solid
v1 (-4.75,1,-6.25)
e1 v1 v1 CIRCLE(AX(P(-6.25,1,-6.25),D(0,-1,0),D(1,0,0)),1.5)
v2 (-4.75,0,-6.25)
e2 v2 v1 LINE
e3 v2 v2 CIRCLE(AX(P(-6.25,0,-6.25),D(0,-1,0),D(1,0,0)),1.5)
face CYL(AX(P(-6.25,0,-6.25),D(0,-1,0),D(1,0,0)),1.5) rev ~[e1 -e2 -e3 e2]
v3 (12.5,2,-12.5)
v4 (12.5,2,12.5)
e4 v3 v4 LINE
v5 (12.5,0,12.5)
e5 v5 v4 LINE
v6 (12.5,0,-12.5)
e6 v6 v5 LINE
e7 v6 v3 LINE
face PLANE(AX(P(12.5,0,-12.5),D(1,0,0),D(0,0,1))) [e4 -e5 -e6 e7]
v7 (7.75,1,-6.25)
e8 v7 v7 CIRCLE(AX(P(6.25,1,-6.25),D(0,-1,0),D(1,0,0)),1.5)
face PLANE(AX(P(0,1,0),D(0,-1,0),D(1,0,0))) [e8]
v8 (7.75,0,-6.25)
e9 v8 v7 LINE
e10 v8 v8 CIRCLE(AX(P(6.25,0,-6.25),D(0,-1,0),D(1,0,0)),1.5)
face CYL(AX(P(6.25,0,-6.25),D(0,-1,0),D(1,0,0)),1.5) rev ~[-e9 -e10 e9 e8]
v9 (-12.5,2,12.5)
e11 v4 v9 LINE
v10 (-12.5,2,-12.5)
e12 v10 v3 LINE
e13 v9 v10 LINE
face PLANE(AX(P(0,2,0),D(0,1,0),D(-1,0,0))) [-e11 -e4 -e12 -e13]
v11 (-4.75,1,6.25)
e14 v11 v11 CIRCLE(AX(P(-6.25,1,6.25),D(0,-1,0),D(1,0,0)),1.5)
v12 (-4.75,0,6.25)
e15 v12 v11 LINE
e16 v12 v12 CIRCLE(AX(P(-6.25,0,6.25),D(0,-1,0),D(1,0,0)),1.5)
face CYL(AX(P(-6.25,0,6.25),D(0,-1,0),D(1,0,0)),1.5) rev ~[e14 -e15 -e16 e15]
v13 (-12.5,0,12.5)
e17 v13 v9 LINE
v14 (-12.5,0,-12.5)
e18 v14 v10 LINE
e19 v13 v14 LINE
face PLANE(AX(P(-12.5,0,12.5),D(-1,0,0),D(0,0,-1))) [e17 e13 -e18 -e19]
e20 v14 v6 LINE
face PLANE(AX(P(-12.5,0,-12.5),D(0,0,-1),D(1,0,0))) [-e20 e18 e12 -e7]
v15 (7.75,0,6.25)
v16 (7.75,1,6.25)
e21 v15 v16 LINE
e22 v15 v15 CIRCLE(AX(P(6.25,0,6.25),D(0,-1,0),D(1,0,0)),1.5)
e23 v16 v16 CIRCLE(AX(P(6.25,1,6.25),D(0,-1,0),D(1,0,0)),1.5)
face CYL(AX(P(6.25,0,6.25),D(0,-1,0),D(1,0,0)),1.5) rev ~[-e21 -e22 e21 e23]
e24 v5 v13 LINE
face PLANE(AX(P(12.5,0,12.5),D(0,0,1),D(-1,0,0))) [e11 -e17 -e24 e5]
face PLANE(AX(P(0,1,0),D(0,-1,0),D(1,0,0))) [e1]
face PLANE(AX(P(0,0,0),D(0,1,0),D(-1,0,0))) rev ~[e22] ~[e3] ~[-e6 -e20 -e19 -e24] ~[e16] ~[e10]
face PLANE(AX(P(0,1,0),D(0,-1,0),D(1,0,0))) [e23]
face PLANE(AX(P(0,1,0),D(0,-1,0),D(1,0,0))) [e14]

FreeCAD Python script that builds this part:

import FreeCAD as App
import Part
import Sketcher
Q = App.Units.Quantity

doc = App.newDocument("Part")
body = doc.addObject("PartDesign::Body", "Body")

sketch1 = body.newObject("Sketcher::SketchObject", "Sketch")
sketch1.AttachmentSupport = (doc.getObject("XZ_Plane"), [""])
sketch1.MapMode = "FlatFace"
sketch1.addGeometry(Part.LineSegment(App.Vector(12, -12, 0), App.Vector(-12, -12, 0)), False)
sketch1.addGeometry(Part.LineSegment(App.Vector(-12, -12, 0), App.Vector(-12, 12, 0)), False)
sketch1.addGeometry(Part.LineSegment(App.Vector(-12, 12, 0), App.Vector(12, 12, 0)), False)
sketch1.addGeometry(Part.LineSegment(App.Vector(12, 12, 0), App.Vector(12, -12, 0)), False)
sketch1.addConstraint(Sketcher.Constraint("Coincident", 0, 2, 1, 1))
sketch1.addConstraint(Sketcher.Constraint("Coincident", 1, 2, 2, 1))
sketch1.addConstraint(Sketcher.Constraint("Coincident", 2, 2, 3, 1))
sketch1.addConstraint(Sketcher.Constraint("Coincident", 3, 2, 0, 1))
sketch1.addConstraint(Sketcher.Constraint("Horizontal", 0))
sketch1.addConstraint(Sketcher.Constraint("Vertical", 1))
sketch1.addConstraint(Sketcher.Constraint("Horizontal", 2))
sketch1.addConstraint(Sketcher.Constraint("Vertical", 3))
sketch1.addConstraint(Sketcher.Constraint("Symmetric", 0, 2, 2, 2, -1, 1))
sketch1.addConstraint(Sketcher.Constraint("Equal", 2, 1))
sketch1.addConstraint(Sketcher.Constraint("DistanceX", 0, 2, 0, 1, Q("25 mm")))
pad1 = body.newObject("PartDesign::Pad", "Pad")
pad1.Profile = sketch1
pad1.Length = 2
pad1.Reversed = True

sketch2 = body.newObject("Sketcher::SketchObject", "Sketch001")
sketch2.AttachmentSupport = (doc.getObject("XZ_Plane"), [""])
sketch2.MapMode = "FlatFace"
sketch2.addGeometry(Part.Circle(App.Vector(-6.2, 6.2, 0), App.Vector(0, 0, 1), 1.5), False)
sketch2.addGeometry(Part.Circle(App.Vector(6.2, 6.2, 0), App.Vector(0, 0, 1), 1.5), False)
sketch2.addGeometry(Part.Circle(App.Vector(-6.2, -6.2, 0), App.Vector(0, 0, 1), 1.5), False)
sketch2.addGeometry(Part.Circle(App.Vector(6.2, -6.2, 0), App.Vector(0, 0, 1), 1.5), False)
sketch2.addConstraint(Sketcher.Constraint("Equal", 0, 1))
sketch2.addConstraint(Sketcher.Constraint("Equal", 1, 2))
sketch2.addConstraint(Sketcher.Constraint("Equal", 2, 3))
sketch2.addConstraint(Sketcher.Constraint("Symmetric", 1, 3, 2, 3, -1, 1))
sketch2.addConstraint(Sketcher.Constraint("Symmetric", 0, 3, 3, 3, -1, 1))
sketch2.addConstraint(Sketcher.Constraint("Symmetric", 0, 3, 1, 3, -2))
sketch2.addConstraint(Sketcher.Constraint("Diameter", 0, Q("3 mm")))
sketch2.addConstraint(Sketcher.Constraint("DistanceX", 0, 3, 1, 3, Q("12.5 mm")))
sketch2.addConstraint(Sketcher.Constraint("DistanceY", 2, 3, 0, 3, Q("12.5 mm")))
pocket1 = body.newObject("PartDesign::Pocket", "Pocket")
pocket1.Profile = sketch2
pocket1.Length = 1

doc.recompute()
